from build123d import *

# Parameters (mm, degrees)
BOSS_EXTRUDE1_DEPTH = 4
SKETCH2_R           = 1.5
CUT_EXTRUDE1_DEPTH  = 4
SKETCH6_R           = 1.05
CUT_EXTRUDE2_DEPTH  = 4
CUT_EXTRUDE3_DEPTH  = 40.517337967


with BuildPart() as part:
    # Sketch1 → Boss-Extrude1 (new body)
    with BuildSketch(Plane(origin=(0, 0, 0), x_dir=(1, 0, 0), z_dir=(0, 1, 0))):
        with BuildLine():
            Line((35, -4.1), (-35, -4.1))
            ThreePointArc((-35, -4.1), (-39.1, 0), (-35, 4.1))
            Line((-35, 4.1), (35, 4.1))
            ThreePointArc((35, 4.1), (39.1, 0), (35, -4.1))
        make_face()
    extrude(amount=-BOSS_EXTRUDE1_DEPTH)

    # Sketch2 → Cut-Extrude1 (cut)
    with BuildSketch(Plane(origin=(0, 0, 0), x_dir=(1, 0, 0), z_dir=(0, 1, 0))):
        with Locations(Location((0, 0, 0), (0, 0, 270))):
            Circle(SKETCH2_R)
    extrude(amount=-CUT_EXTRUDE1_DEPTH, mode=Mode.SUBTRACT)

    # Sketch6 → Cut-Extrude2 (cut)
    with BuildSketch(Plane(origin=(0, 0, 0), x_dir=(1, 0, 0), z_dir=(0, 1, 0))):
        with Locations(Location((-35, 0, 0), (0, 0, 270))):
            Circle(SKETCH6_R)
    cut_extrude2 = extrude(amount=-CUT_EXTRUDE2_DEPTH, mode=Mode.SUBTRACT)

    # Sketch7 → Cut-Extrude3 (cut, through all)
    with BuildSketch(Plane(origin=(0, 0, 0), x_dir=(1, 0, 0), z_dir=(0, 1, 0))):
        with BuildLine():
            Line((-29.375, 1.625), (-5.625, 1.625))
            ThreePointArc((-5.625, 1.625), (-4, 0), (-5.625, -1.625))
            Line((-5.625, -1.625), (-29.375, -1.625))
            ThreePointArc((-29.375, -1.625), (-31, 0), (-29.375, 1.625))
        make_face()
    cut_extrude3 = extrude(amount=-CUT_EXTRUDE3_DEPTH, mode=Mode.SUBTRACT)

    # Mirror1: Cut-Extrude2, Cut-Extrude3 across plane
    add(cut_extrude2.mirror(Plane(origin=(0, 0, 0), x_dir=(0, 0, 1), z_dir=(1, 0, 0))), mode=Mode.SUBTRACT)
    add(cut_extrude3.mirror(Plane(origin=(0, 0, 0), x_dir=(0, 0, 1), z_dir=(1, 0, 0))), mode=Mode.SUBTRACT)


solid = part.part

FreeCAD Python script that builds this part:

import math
import FreeCAD as App
import Part
import Sketcher

V = App.Vector

doc = App.newDocument("Part")
body = doc.addObject("PartDesign::Body", "Body")

sketch1 = body.newObject("Sketcher::SketchObject", "Sketch")
sketch1.AttachmentSupport = (doc.getObject("XZ_Plane"), [""])
sketch1.MapMode = "FlatFace"
sketch1.addGeometry([
    Part.LineSegment(V(-35, 4.1, 0), V(35, 4.1, 0)),
    Part.ArcOfCircle(Part.Circle(V(35, 0, 0), V(0, 0, 1), 4.1), math.radians(-90), math.radians(90)),
    Part.LineSegment(V(35, -4.1, 0), V(-35, -4.1, 0)),
    Part.ArcOfCircle(Part.Circle(V(-35, 0, 0), V(0, 0, 1), 4.1), math.radians(90), math.radians(270)),
], False)
sketch1.addConstraint([
    Sketcher.Constraint("Tangent", 0, 2, 1, 2),
    Sketcher.Constraint("Tangent", 1, 1, 2, 1),
    Sketcher.Constraint("Tangent", 2, 2, 3, 2),
    Sketcher.Constraint("Tangent", 3, 1, 0, 1),
    Sketcher.Constraint("Horizontal", 0),
    Sketcher.Constraint("Horizontal", 2),
    Sketcher.Constraint("Symmetric", 1, 3, 3, 3, -1, 1),
    Sketcher.Constraint("Radius", 1, 4.1),
    Sketcher.Constraint("DistanceX", 0, 1, 0, 2, 70.0),
])
pad1 = body.newObject("PartDesign::Pad", "Pad")
pad1.Profile = sketch1
pad1.Length = 4

sketch2 = body.newObject("Sketcher::SketchObject", "Sketch001")
sketch2.AttachmentSupport = (doc.getObject("XZ_Plane"), [""])
sketch2.MapMode = "FlatFace"
sketch2.addGeometry(Part.Circle(V(0, 0, 0), V(0, 0, 1), 1.5), False)
sketch2.addConstraint([
    Sketcher.Constraint("Coincident", 0, 3, -1, 1),
    Sketcher.Constraint("Diameter", 0, 3.0),
])
pocket1 = body.newObject("PartDesign::Pocket", "Pocket")
pocket1.Profile = sketch2
pocket1.Length = 4
pocket1.Reversed = True

sketch3 = body.newObject("Sketcher::SketchObject", "Sketch002")
sketch3.AttachmentSupport = (doc.getObject("XZ_Plane"), [""])
sketch3.MapMode = "FlatFace"
sketch3.addGeometry(Part.Circle(V(-35, 0, 0), V(0, 0, 1), 1.1), False)
sketch3.addConstraint([
    Sketcher.Constraint("PointOnObject", 0, 3, -1),
    Sketcher.Constraint("Diameter", 0, 2.1),
    Sketcher.Constraint("DistanceX", 0, 3, -1, 1, 35.0),
])
pocket2 = body.newObject("PartDesign::Pocket", "Pocket001")
pocket2.Profile = sketch3
pocket2.Length = 4
pocket2.Reversed = True

sketch4 = body.newObject("Sketcher::SketchObject", "Sketch003")
sketch4.AttachmentSupport = (doc.getObject("XZ_Plane"), [""])
sketch4.MapMode = "FlatFace"
sketch4.addGeometry([
    Part.LineSegment(V(-5.6, -1.6, 0), V(-29.4, -1.6, 0)),
    Part.ArcOfCircle(Part.Circle(V(-29.4, 0, 0), V(0, 0, 1), 1.6), math.radians(90), math.radians(270)),
    Part.LineSegment(V(-29.4, 1.6, 0), V(-5.6, 1.6, 0)),
    Part.ArcOfCircle(Part.Circle(V(-5.6, 0, 0), V(0, 0, 1), 1.6), math.radians(-90), math.radians(90)),
], False)
sketch4.addConstraint([
    Sketcher.Constraint("Tangent", 0, 2, 1, 2),
    Sketcher.Constraint("Tangent", 1, 1, 2, 1),
    Sketcher.Constraint("Tangent", 2, 2, 3, 2),
    Sketcher.Constraint("Tangent", 3, 1, 0, 1),
    Sketcher.Constraint("Horizontal", 0),
    Sketcher.Constraint("Horizontal", 2),
    Sketcher.Constraint("PointOnObject", 1, 3, -1),
    Sketcher.Constraint("Radius", 1, 1.625),
    Sketcher.Constraint("DistanceX", 0, 2, 0, 1, 23.75),
    Sketcher.Constraint("DistanceX", 1, 3, -1, 1, 29.375),
])
pocket3 = body.newObject("PartDesign::Pocket", "Pocket002")
pocket3.Profile = sketch4
pocket3.Type = "ThroughAll"
pocket3.Reversed = True
doc.recompute()

mirrored = body.newObject("PartDesign::Mirrored", "Mirrored")
mirrored.Originals = [pocket2, pocket3]
mirrored.MirrorPlane = (doc.getObject("YZ_Plane"), [""])
body.Tip = mirrored

doc.recompute()
